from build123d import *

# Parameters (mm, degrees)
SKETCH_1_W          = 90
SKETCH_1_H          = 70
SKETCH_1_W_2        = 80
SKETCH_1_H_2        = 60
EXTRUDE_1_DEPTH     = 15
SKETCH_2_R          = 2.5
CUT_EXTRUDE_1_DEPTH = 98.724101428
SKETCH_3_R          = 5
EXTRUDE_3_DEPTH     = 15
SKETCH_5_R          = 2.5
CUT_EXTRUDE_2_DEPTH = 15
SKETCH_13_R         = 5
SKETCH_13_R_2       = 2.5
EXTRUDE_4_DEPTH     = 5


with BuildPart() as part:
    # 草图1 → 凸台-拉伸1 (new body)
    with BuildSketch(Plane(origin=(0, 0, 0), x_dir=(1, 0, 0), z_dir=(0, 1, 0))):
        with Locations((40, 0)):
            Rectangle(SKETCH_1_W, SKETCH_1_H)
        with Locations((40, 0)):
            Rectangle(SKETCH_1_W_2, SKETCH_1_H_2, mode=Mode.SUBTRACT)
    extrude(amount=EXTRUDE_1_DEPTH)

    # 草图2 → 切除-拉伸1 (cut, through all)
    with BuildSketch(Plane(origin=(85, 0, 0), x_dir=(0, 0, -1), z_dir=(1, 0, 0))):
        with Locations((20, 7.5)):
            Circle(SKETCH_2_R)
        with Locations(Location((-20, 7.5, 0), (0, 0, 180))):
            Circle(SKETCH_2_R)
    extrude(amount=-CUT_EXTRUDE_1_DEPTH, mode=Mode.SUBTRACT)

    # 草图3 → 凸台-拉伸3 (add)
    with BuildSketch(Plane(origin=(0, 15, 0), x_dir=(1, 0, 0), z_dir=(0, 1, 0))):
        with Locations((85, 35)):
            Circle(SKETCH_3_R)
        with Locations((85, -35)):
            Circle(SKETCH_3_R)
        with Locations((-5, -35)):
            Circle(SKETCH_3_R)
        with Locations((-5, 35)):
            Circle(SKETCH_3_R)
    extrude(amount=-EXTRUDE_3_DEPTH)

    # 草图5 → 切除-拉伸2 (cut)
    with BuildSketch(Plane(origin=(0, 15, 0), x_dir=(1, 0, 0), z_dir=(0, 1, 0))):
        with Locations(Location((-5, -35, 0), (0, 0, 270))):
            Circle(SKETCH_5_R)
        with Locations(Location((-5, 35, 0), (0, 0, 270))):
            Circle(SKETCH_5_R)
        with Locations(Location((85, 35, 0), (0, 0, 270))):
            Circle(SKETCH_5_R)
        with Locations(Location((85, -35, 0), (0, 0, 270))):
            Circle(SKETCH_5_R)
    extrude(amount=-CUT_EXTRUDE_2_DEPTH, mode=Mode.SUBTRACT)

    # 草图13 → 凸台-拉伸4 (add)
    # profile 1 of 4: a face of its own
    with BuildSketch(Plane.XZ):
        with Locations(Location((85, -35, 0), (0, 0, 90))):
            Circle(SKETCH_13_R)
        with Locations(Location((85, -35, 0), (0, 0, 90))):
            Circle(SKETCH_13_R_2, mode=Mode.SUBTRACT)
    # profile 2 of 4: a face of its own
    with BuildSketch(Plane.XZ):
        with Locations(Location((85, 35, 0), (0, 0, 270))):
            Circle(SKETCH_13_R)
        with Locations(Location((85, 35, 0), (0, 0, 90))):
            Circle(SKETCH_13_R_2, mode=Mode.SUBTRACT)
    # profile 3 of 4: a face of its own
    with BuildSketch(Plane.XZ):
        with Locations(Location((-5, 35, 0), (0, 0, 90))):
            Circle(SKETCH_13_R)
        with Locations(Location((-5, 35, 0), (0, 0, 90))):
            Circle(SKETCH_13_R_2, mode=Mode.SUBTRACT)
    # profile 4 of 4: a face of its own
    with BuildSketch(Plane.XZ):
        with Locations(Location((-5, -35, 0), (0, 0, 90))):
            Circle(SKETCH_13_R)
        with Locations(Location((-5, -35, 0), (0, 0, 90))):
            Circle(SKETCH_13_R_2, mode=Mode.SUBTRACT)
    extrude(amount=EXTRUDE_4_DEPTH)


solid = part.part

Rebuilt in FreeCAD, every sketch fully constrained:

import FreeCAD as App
import Part
import Sketcher
Q = App.Units.Quantity

doc = App.newDocument("Part")
body = doc.addObject("PartDesign::Body", "Body")

# Sketch on XZ plane
sketch1 = doc.addObject("Sketcher::SketchObject", "Sketch")
body.addObject(sketch1)
sketch1.AttachmentSupport = (doc.XZ_Plane, [""])
sketch1.MapMode = "FlatFace"
sketch1.addGeometry([
    Part.LineSegment(App.Vector(-5, -35, 0), App.Vector(-5, 35, 0)),  # 0
    Part.LineSegment(App.Vector(-5, 35, 0), App.Vector(85, 35, 0)),  # 1
    Part.LineSegment(App.Vector(85, 35, 0), App.Vector(85, -35, 0)),  # 2
    Part.LineSegment(App.Vector(85, -35, 0), App.Vector(-5, -35, 0)),  # 3
    Part.LineSegment(App.Vector(80, 30, 0), App.Vector(0, 30, 0)),  # 4
    Part.LineSegment(App.Vector(0, 30, 0), App.Vector(0, -30, 0)),  # 5
    Part.LineSegment(App.Vector(0, -30, 0), App.Vector(80, -30, 0)),  # 6
    Part.LineSegment(App.Vector(80, -30, 0), App.Vector(80, 30, 0)),  # 7
], False)
sketch1.addConstraint([
    Sketcher.Constraint("Coincident", 0, 2, 1, 1),
    Sketcher.Constraint("Coincident", 1, 2, 2, 1),
    Sketcher.Constraint("Coincident", 2, 2, 3, 1),
    Sketcher.Constraint("Coincident", 3, 2, 0, 1),
    Sketcher.Constraint("Coincident", 4, 2, 5, 1),
    Sketcher.Constraint("Coincident", 5, 2, 6, 1),
    Sketcher.Constraint("Coincident", 6, 2, 7, 1),
    Sketcher.Constraint("Coincident", 7, 2, 4, 1),
    Sketcher.Constraint("Vertical", 0),
    Sketcher.Constraint("Horizontal", 1),
    Sketcher.Constraint("Vertical", 2),
    Sketcher.Constraint("Horizontal", 3),
    Sketcher.Constraint("Horizontal", 4),
    Sketcher.Constraint("Vertical", 5),
    Sketcher.Constraint("Horizontal", 6),
    Sketcher.Constraint("Vertical", 7),
    Sketcher.Constraint("Symmetric", 4, 2, 5, 2, -1, 1),
    Sketcher.Constraint("DistanceX", 1, 1, 1, 2, Q("90 mm")),
    Sketcher.Constraint("DistanceX", 4, 2, 4, 1, Q("80 mm")),
    Sketcher.Constraint("DistanceY", 0, 1, 0, 2, Q("70 mm")),
    Sketcher.Constraint("DistanceY", 5, 2, 5, 1, Q("60 mm")),
    Sketcher.Constraint("DistanceX", 0, 2, -1, 1, Q("5 mm")),
    Sketcher.Constraint("DistanceY", -1, 1, 0, 2, Q("35 mm")),
])
pad1 = doc.addObject("PartDesign::Pad", "Pad")
body.addObject(pad1)
pad1.Profile = sketch1
pad1.Length = 15
pad1.Reversed = True

# Sketch on YZ plane
sketch2 = doc.addObject("Sketcher::SketchObject", "Sketch001")
body.addObject(sketch2)
sketch2.AttachmentSupport = (doc.YZ_Plane, [""])
sketch2.MapMode = "FlatFace"
sketch2.AttachmentOffset = App.Placement(App.Vector(0, 0, 85), App.Rotation())
sketch2.addGeometry([
    Part.Circle(App.Vector(7.5, -20, 0), App.Vector(0, 0, 1), 2.5),
    Part.Circle(App.Vector(7.5, 20, 0), App.Vector(0, 0, 1), 2.5),
], False)
sketch2.addConstraint([
    Sketcher.Constraint("Equal", 0, 1),
    Sketcher.Constraint("Symmetric", 0, 3, 1, 3, -1),
    Sketcher.Constraint("Diameter", 0, Q("5 mm")),
    Sketcher.Constraint("DistanceY", 0, 3, -1, 1, Q("20 mm")),
    Sketcher.Constraint("DistanceX", -1, 1, 0, 3, Q("7.5 mm")),
])
pocket1 = doc.addObject("PartDesign::Pocket", "Pocket")
body.addObject(pocket1)
pocket1.Profile = sketch2
pocket1.Type = "ThroughAll"

# Sketch on XZ plane
sketch3 = doc.addObject("Sketcher::SketchObject", "Sketch002")
body.addObject(sketch3)
sketch3.AttachmentSupport = (doc.XZ_Plane, [""])
sketch3.MapMode = "FlatFace"
sketch3.AttachmentOffset = App.Placement(App.Vector(0, 0, -15), App.Rotation())
sketch3.addGeometry([
    Part.Circle(App.Vector(85, -35, 0), App.Vector(0, 0, 1), 5),
    Part.Circle(App.Vector(85, 35, 0), App.Vector(0, 0, 1), 5),
    Part.Circle(App.Vector(-5, 35, 0), App.Vector(0, 0, 1), 5),
    Part.Circle(App.Vector(-5, -35, 0), App.Vector(0, 0, 1), 5),
], False)
sketch3.addConstraint([
    Sketcher.Constraint("Equal", 0, 1),
    Sketcher.Constraint("Equal", 1, 2),
    Sketcher.Constraint("Equal", 2, 3),
    Sketcher.Constraint("Symmetric", 0, 3, 1, 3, -1),
    Sketcher.Constraint("Symmetric", 2, 3, 3, 3, -1),
    Sketcher.Constraint("Horizontal", 1, 3, 2, 3),
    Sketcher.Constraint("Diameter", 0, Q("10 mm")),
    Sketcher.Constraint("DistanceX", -1, 1, 0, 3, Q("85 mm")),
    Sketcher.Constraint("DistanceY", 0, 3, -1, 1, Q("35 mm")),
    Sketcher.Constraint("DistanceX", 2, 3, -1, 1, Q("5 mm")),
])
pad2 = doc.addObject("PartDesign::Pad", "Pad001")
body.addObject(pad2)
pad2.Profile = sketch3
pad2.Length = 15

# Sketch on XZ plane
sketch4 = doc.addObject("Sketcher::SketchObject", "Sketch003")
body.addObject(sketch4)
sketch4.AttachmentSupport = (doc.XZ_Plane, [""])
sketch4.MapMode = "FlatFace"
sketch4.AttachmentOffset = App.Placement(App.Vector(0, 0, -15), App.Rotation())
sketch4.addGeometry([
    Part.Circle(App.Vector(-5, 35, 0), App.Vector(0, 0, 1), 2.5),
    Part.Circle(App.Vector(-5, -35, 0), App.Vector(0, 0, 1), 2.5),
    Part.Circle(App.Vector(85, -35, 0), App.Vector(0, 0, 1), 2.5),
    Part.Circle(App.Vector(85, 35, 0), App.Vector(0, 0, 1), 2.5),
], False)
sketch4.addConstraint([
    Sketcher.Constraint("Equal", 0, 1),
    Sketcher.Constraint("Equal", 1, 2),
    Sketcher.Constraint("Equal", 2, 3),
    Sketcher.Constraint("Symmetric", 0, 3, 1, 3, -1),
    Sketcher.Constraint("Symmetric", 2, 3, 3, 3, -1),
    Sketcher.Constraint("Horizontal", 1, 3, 2, 3),
    Sketcher.Constraint("Diameter", 0, Q("5 mm")),
    Sketcher.Constraint("DistanceX", 0, 3, -1, 1, Q("5 mm")),
    Sketcher.Constraint("DistanceY", -1, 1, 0, 3, Q("35 mm")),
    Sketcher.Constraint("DistanceX", -1, 1, 2, 3, Q("85 mm")),
])
pocket2 = doc.addObject("PartDesign::Pocket", "Pocket001")
body.addObject(pocket2)
pocket2.Profile = sketch4
pocket2.Length = 15
pocket2.Reversed = True

# Sketch on XZ plane
sketch5 = doc.addObject("Sketcher::SketchObject", "Sketch004")
body.addObject(sketch5)
sketch5.AttachmentSupport = (doc.XZ_Plane, [""])
sketch5.MapMode = "FlatFace"
sketch5.addGeometry([
    Part.Circle(App.Vector(85, -35, 0), App.Vector(0, 0, 1), 5),  # 0
    Part.Circle(App.Vector(85, -35, 0), App.Vector(0, 0, 1), 2.5),  # 1
    Part.Circle(App.Vector(85, 35, 0), App.Vector(0, 0, 1), 5),  # 2
    Part.Circle(App.Vector(85, 35, 0), App.Vector(0, 0, 1), 2.5),  # 3
    Part.Circle(App.Vector(-5, 35, 0), App.Vector(0, 0, 1), 5),  # 4
    Part.Circle(App.Vector(-5, 35, 0), App.Vector(0, 0, 1), 2.5),  # 5
    Part.Circle(App.Vector(-5, -35, 0), App.Vector(0, 0, 1), 5),  # 6
    Part.Circle(App.Vector(-5, -35, 0), App.Vector(0, 0, 1), 2.5),  # 7
], False)
sketch5.addConstraint([
    Sketcher.Constraint("Coincident", 1, 3, 0, 3),
    Sketcher.Constraint("Coincident", 3, 3, 2, 3),
    Sketcher.Constraint("Coincident", 5, 3, 4, 3),
    Sketcher.Constraint("Coincident", 7, 3, 6, 3),
    Sketcher.Constraint("Equal", 0, 2),
    Sketcher.Constraint("Equal", 1, 3),
    Sketcher.Constraint("Equal", 2, 4),
    Sketcher.Constraint("Equal", 3, 5),
    Sketcher.Constraint("Equal", 4, 6),
    Sketcher.Constraint("Equal", 5, 7),
    Sketcher.Constraint("Symmetric", 0, 3, 2, 3, -1),
    Sketcher.Constraint("Symmetric", 4, 3, 6, 3, -1),
    Sketcher.Constraint("Horizontal", 3, 3, 4, 3),
    Sketcher.Constraint("Diameter", 0, Q("10 mm")),
    Sketcher.Constraint("Diameter", 1, Q("5 mm")),
    Sketcher.Constraint("DistanceX", -1, 1, 0, 3, Q("85 mm")),
    Sketcher.Constraint("DistanceY", 0, 3, -1, 1, Q("35 mm")),
    Sketcher.Constraint("DistanceX", 4, 3, -1, 1, Q("5 mm")),
])
pad3 = doc.addObject("PartDesign::Pad", "Pad002")
body.addObject(pad3)
pad3.Profile = sketch5
pad3.Length = 5

doc.recompute()
